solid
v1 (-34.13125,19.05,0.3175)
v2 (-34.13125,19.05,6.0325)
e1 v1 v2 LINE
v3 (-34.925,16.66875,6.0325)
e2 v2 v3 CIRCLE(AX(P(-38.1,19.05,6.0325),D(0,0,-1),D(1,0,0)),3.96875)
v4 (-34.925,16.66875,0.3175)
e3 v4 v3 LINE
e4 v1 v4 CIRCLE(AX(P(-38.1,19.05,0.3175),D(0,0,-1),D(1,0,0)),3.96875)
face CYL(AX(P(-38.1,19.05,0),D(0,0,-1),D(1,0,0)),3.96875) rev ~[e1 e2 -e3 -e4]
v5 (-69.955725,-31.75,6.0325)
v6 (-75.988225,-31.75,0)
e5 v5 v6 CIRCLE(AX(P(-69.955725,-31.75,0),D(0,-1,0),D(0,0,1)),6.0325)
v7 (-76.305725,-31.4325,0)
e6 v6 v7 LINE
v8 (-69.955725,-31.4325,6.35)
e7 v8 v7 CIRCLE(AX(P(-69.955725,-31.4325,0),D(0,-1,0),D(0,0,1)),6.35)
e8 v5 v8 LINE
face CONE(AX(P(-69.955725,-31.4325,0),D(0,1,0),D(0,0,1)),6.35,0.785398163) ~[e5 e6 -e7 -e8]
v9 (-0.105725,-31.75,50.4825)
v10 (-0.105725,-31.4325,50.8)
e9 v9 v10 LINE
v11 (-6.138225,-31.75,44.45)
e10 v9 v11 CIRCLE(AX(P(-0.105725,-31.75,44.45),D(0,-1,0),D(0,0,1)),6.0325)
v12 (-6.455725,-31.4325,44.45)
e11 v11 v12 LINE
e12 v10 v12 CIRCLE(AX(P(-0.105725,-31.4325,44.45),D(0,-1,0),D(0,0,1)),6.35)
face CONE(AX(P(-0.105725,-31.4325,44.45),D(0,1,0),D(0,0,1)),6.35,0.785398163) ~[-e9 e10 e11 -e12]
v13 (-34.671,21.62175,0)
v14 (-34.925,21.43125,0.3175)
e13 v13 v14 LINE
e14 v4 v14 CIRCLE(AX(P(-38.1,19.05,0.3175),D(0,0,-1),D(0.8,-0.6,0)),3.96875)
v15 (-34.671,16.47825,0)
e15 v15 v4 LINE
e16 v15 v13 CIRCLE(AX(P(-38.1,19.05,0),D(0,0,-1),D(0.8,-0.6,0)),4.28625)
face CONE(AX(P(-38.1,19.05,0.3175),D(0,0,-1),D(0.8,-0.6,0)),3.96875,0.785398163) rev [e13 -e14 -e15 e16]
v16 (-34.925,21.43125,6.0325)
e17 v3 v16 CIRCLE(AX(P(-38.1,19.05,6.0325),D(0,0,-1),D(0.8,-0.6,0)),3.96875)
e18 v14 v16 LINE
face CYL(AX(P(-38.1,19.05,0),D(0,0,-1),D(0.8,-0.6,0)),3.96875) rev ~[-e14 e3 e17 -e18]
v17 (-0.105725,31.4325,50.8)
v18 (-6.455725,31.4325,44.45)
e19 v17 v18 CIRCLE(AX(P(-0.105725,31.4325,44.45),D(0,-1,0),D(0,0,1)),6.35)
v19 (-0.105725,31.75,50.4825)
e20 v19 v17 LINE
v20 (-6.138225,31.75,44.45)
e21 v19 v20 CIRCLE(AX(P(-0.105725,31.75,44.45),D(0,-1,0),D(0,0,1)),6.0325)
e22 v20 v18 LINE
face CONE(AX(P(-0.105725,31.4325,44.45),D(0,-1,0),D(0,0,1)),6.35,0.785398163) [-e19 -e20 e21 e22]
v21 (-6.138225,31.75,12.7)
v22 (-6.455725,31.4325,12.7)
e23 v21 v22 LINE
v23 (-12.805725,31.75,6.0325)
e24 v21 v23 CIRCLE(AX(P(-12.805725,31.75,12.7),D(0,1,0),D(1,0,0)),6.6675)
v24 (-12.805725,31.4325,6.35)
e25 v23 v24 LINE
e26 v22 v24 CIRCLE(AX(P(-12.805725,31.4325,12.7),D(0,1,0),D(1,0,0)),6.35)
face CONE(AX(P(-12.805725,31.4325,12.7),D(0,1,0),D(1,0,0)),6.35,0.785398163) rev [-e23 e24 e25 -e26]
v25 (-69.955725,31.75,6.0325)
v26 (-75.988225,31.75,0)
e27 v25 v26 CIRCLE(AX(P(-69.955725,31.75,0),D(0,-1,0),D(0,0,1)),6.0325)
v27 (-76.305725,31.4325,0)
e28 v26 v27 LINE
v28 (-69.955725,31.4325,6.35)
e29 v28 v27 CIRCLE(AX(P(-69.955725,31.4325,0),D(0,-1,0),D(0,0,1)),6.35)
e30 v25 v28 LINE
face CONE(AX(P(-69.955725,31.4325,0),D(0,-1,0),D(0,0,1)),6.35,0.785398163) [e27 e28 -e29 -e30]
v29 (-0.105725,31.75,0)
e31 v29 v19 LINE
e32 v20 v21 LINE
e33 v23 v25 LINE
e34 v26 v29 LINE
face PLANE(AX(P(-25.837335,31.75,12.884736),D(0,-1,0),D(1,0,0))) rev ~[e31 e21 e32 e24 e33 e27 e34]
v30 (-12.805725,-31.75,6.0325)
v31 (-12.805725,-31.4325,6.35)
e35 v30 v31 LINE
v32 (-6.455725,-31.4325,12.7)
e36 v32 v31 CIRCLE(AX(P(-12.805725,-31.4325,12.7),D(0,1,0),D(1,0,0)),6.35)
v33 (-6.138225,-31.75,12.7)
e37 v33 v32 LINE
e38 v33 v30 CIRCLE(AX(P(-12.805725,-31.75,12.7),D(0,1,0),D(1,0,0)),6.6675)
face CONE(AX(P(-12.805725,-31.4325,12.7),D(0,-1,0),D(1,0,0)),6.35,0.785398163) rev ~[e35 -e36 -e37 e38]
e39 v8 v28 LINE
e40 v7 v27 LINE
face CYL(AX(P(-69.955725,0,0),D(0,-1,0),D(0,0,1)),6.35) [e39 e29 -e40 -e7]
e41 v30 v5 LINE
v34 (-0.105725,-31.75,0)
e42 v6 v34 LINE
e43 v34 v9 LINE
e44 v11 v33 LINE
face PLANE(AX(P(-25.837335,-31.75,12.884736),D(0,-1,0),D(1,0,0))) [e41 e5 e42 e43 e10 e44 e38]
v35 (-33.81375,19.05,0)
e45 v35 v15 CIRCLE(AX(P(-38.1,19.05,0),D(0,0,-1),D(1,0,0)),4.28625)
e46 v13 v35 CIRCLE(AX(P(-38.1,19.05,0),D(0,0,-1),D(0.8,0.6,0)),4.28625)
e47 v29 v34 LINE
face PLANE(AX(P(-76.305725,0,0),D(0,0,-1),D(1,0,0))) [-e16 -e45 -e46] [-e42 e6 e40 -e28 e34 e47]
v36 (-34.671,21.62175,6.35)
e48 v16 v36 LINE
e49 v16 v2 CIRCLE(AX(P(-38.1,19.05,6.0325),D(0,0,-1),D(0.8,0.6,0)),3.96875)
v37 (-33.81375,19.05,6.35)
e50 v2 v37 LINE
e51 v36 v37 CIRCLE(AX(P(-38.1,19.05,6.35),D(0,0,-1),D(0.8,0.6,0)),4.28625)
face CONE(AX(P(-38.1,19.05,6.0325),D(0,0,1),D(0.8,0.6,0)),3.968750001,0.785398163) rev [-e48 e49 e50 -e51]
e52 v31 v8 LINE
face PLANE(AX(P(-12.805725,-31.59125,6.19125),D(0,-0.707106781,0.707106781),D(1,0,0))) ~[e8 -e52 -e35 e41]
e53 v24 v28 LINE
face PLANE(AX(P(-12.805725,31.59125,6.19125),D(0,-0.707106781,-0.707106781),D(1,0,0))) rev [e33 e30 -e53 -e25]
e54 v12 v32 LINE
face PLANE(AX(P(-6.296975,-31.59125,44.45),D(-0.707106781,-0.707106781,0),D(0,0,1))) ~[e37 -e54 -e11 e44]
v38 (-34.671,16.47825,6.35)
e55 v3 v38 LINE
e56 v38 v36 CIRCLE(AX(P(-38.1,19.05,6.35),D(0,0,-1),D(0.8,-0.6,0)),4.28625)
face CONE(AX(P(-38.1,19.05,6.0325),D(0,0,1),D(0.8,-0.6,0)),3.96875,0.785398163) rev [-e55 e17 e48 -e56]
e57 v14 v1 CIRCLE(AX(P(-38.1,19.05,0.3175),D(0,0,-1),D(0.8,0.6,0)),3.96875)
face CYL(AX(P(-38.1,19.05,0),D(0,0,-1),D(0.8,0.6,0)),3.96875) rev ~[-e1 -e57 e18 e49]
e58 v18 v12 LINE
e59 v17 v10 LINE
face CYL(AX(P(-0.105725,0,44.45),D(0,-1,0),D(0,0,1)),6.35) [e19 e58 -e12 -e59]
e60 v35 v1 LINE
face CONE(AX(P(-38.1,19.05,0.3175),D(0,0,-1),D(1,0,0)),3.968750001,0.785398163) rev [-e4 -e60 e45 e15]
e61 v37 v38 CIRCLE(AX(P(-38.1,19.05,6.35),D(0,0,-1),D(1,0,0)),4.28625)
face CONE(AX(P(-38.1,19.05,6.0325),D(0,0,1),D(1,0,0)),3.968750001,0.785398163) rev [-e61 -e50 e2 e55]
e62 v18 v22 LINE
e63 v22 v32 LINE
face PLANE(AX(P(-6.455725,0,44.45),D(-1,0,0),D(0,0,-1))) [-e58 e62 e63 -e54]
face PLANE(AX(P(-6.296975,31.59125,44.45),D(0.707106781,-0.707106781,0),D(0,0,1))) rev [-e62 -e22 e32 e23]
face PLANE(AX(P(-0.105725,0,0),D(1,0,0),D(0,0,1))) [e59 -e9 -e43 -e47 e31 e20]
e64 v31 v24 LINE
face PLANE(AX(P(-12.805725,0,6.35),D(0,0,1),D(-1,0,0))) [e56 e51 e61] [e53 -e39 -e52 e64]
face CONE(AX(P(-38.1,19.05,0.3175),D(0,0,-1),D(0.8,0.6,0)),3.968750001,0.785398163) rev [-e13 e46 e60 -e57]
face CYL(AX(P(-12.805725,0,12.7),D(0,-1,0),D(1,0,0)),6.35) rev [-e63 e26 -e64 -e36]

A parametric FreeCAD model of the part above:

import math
import FreeCAD as App
import Part
import Sketcher

V = App.Vector
Q = App.Units.Quantity


def edges_at(feature, points):
    """Names of the edges that pass closest to the given points."""
    edges = feature.Shape.Edges
    near = lambda p: min(range(len(edges)), key=lambda i: edges[i].distToShape(Part.Vertex(*p))[0])
    return sorted({f"Edge{near(p) + 1}" for p in points})

doc = App.newDocument("Part")
body = doc.addObject("PartDesign::Body", "Body")

# Sketch on XZ plane
sketch1 = body.newObject("Sketcher::SketchObject", "Sketch")
sketch1.AttachmentSupport = (doc.getObject("XZ_Plane"), [""])
sketch1.MapMode = "FlatFace"
sketch1.addGeometry(Part.LineSegment(V(-76, 0, 0), V(0, 0, 0)), False)
sketch1.addGeometry(Part.LineSegment(V(0, 0, 0), V(0, 51, 0)), False)
sketch1.addGeometry(Part.ArcOfCircle(Part.Circle(V(0, 44, 0), V(0, 0, 1), 6), math.radians(90), math.radians(180)), False)
sketch1.addGeometry(Part.LineSegment(V(-6, 44, 0), V(-6, 13, 0)), False)
sketch1.addGeometry(Part.ArcOfCircle(Part.Circle(V(-13, 13, 0), V(0, 0, 1), 6), math.radians(-90), math.radians(0)), False)
sketch1.addGeometry(Part.LineSegment(V(-13, 6, 0), V(-70, 6, 0)), False)
sketch1.addGeometry(Part.ArcOfCircle(Part.Circle(V(-70, 0, 0), V(0, 0, 1), 6), math.radians(90), math.radians(180)), False)
sketch1.addConstraint(Sketcher.Constraint("Coincident", 0, 2, 1, 1))
sketch1.addConstraint(Sketcher.Constraint("Coincident", 1, 2, 2, 1))
sketch1.addConstraint(Sketcher.Constraint("Tangent", 2, 2, 3, 1))
sketch1.addConstraint(Sketcher.Constraint("Tangent", 3, 2, 4, 2))
sketch1.addConstraint(Sketcher.Constraint("Tangent", 4, 1, 5, 1))
sketch1.addConstraint(Sketcher.Constraint("Tangent", 5, 2, 6, 1))
sketch1.addConstraint(Sketcher.Constraint("Coincident", 6, 2, 0, 1))
sketch1.addConstraint(Sketcher.Constraint("Horizontal", 0))
sketch1.addConstraint(Sketcher.Constraint("Vertical", 1))
sketch1.addConstraint(Sketcher.Constraint("Vertical", 3))
sketch1.addConstraint(Sketcher.Constraint("Horizontal", 5))
sketch1.addConstraint(Sketcher.Constraint("Equal", 2, 4))
sketch1.addConstraint(Sketcher.Constraint("Equal", 4, 6))
sketch1.addConstraint(Sketcher.Constraint("PointOnObject", 6, 3, -1))
sketch1.addConstraint(Sketcher.Constraint("PointOnObject", 0, 2, -1))
sketch1.addConstraint(Sketcher.Constraint("Vertical", 2, 3, 0, 2))
sketch1.addConstraint(Sketcher.Constraint("DistanceX", 0, 1, 0, 2, Q("3 in")))
sketch1.addConstraint(Sketcher.Constraint("DistanceY", 1, 1, 1, 2, Q("2 in")))
sketch1.addConstraint(Sketcher.Constraint("Radius", 2, Q("0.25 in")))
sketch1.addConstraint(Sketcher.Constraint("DistanceX", 2, 3, -1, 1, Q("0.105725 mm")))
pad1 = body.newObject("PartDesign::Pad", "Pad")
pad1.Profile = sketch1
pad1.Length = Q("2.5 in")
pad1.Midplane = True

# Sketch on XY plane
sketch2 = body.newObject("Sketcher::SketchObject", "Sketch001")
sketch2.AttachmentSupport = (doc.getObject("XY_Plane"), [""])
sketch2.MapMode = "FlatFace"
sketch2.addGeometry(Part.ArcOfCircle(Part.Circle(V(-38.1, 19.1, 0), V(0, 0, 1), 4), math.radians(37), math.radians(323)), False)
sketch2.addGeometry(Part.ArcOfCircle(Part.Circle(V(-38.1, 19.1, 0), V(0, 0, 1), 4), math.radians(0), math.radians(37)), False)
sketch2.addGeometry(Part.ArcOfCircle(Part.Circle(V(-38.1, 19.1, 0), V(0, 0, 1), 4), math.radians(-37), math.radians(0)), False)
sketch2.addConstraint(Sketcher.Constraint("Tangent", 0, 1, 1, 2))
sketch2.addConstraint(Sketcher.Constraint("Tangent", 1, 1, 2, 2))
sketch2.addConstraint(Sketcher.Constraint("Tangent", 2, 1, 0, 2))
sketch2.addConstraint(Sketcher.Constraint("Horizontal", 2, 3, 1, 1))
sketch2.addConstraint(Sketcher.Constraint("Vertical", 0, 1, 2, 1))
sketch2.addConstraint(Sketcher.Constraint("Radius", 0, Q("0.15625 in")))
sketch2.addConstraint(Sketcher.Constraint("DistanceX", 0, 3, -1, 1, Q("1.5 in")))
sketch2.addConstraint(Sketcher.Constraint("DistanceY", -1, 1, 0, 3, Q("0.75 in")))
sketch2.addConstraint(Sketcher.Constraint("DistanceX", 0, 1, -1, 1, Q("1.375 in")))
pocket1 = body.newObject("PartDesign::Pocket", "Pocket")
pocket1.Profile = sketch2
pocket1.Length = Q("1 in")
pocket1.Reversed = True
doc.recompute()

chamfer = body.newObject("PartDesign::Chamfer", "Chamfer")
chamfer.Base = (pocket1, edges_at(pocket1, [
    (-42.069, 19.05, 6.35),
    (-41.381, 31.75, 6.35),
    (-41.381, -31.75, 6.35),
    (-42.069, 19.05, 0),
]))
chamfer.Size = Q("0.0125 in")

doc.recompute()
